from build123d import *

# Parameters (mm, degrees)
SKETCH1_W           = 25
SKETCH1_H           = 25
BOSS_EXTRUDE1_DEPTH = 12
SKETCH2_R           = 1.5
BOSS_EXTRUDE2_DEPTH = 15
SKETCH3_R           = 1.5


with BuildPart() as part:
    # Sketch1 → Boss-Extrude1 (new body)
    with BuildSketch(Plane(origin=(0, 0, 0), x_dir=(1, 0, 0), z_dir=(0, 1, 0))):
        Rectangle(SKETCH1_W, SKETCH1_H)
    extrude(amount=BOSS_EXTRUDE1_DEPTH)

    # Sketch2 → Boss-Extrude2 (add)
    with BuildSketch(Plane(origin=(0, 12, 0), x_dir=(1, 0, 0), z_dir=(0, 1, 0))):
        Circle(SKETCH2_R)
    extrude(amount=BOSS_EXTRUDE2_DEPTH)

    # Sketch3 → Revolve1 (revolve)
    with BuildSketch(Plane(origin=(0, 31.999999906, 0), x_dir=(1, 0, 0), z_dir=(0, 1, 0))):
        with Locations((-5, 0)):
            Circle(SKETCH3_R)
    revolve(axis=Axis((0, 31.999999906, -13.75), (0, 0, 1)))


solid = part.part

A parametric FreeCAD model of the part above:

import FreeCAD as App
import Part
import Sketcher
from FreeCAD import Vector
Q = App.Units.Quantity


def add_polygon(sketch, points):
    """Adds a closed chain of lines whose ends are joined by coincident constraints."""
    first, n = sketch.GeometryCount, len(points)
    for a, b in zip(points, points[1:] + points[:1]):
        sketch.addGeometry(Part.LineSegment(App.Vector(*a, 0), App.Vector(*b, 0)), False)
    for i in range(n):
        sketch.addConstraint(Sketcher.Constraint("Coincident", first + i, 2, first + (i + 1) % n, 1))

doc = App.newDocument("Part")
params = doc.addObject("Spreadsheet::Sheet", "Params")
for row, (alias, value) in enumerate([
    ("sketch1_width", "25 mm"),
    ("pad1_length", "12 mm"),
    ("sketch2_diameter", "3 mm"),
    ("pad2_length", "15 mm"),
    ("sketch3_diameter", "3 mm"),
    ("revolution_angle", "360 deg"),
], start=1):
    params.set(f"A{row}", alias)
    params.set(f"B{row}", "=" + value)
    params.setAlias(f"B{row}", alias)

body = doc.addObject("PartDesign::Body", "Body")

# Sketch on XZ plane
sketch1 = body.newObject("Sketcher::SketchObject", "Sketch")
sketch1.AttachmentSupport = (doc.getObject("XZ_Plane"), [""])
sketch1.MapMode = "FlatFace"
add_polygon(sketch1, [(-12, -12), (-12, 12), (12, 12), (12, -12)])  # lines 0-3
sketch1.addConstraint([
    Sketcher.Constraint("Vertical", 0),
    Sketcher.Constraint("Horizontal", 1),
    Sketcher.Constraint("Vertical", 2),
    Sketcher.Constraint("Horizontal", 3),
    Sketcher.Constraint("Symmetric", 0, 2, 2, 2, -1, 1),
    Sketcher.Constraint("Equal", 3, 0),
    Sketcher.Constraint("DistanceX", 1, 1, 1, 2, Q("25 mm")),
])
sketch1.setExpression("Constraints[10]", "Params.sketch1_width")
pad1 = body.newObject("PartDesign::Pad", "Pad")
pad1.Profile = sketch1
pad1.setExpression("Length", "Params.pad1_length")
pad1.Reversed = True

# Sketch on XZ plane
sketch2 = body.newObject("Sketcher::SketchObject", "Sketch001")
sketch2.AttachmentSupport = (doc.getObject("XZ_Plane"), [""])
sketch2.MapMode = "FlatFace"
sketch2.AttachmentOffset = App.Placement(Vector(0, 0, -12), App.Rotation())
sketch2.addGeometry(Part.Circle(Vector(0, 0, 0), Vector(0, 0, 1), 1.5), False)
sketch2.addConstraint([
    Sketcher.Constraint("Coincident", 0, 3, -1, 1),
    Sketcher.Constraint("Diameter", 0, Q("3 mm")),
])
sketch2.setExpression("Constraints[1]", "Params.sketch2_diameter")
pad2 = body.newObject("PartDesign::Pad", "Pad001")
pad2.Profile = sketch2
pad2.setExpression("Length", "Params.pad2_length")
pad2.Reversed = True

# Sketch on XZ plane
sketch3 = body.newObject("Sketcher::SketchObject", "Sketch002")
sketch3.AttachmentSupport = (doc.getObject("XZ_Plane"), [""])
sketch3.MapMode = "FlatFace"
sketch3.AttachmentOffset = App.Placement(Vector(0, 0, -32), App.Rotation())
sketch3.addGeometry(Part.Circle(Vector(-5, 0, 0), Vector(0, 0, 1), 1.5), False)
sketch3.addConstraint([
    Sketcher.Constraint("PointOnObject", 0, 3, -1),
    Sketcher.Constraint("Diameter", 0, Q("3 mm")),
    Sketcher.Constraint("DistanceX", 0, 3, -1, 1, Q("5 mm")),
])
sketch3.setExpression("Constraints[1]", "Params.sketch3_diameter")
revolution = body.newObject("PartDesign::Revolution", "Revolution")
revolution.Profile = sketch3
revolution.ReferenceAxis = (sketch3, ["V_Axis"])
revolution.setExpression("Angle", "Params.revolution_angle")

doc.recompute()
